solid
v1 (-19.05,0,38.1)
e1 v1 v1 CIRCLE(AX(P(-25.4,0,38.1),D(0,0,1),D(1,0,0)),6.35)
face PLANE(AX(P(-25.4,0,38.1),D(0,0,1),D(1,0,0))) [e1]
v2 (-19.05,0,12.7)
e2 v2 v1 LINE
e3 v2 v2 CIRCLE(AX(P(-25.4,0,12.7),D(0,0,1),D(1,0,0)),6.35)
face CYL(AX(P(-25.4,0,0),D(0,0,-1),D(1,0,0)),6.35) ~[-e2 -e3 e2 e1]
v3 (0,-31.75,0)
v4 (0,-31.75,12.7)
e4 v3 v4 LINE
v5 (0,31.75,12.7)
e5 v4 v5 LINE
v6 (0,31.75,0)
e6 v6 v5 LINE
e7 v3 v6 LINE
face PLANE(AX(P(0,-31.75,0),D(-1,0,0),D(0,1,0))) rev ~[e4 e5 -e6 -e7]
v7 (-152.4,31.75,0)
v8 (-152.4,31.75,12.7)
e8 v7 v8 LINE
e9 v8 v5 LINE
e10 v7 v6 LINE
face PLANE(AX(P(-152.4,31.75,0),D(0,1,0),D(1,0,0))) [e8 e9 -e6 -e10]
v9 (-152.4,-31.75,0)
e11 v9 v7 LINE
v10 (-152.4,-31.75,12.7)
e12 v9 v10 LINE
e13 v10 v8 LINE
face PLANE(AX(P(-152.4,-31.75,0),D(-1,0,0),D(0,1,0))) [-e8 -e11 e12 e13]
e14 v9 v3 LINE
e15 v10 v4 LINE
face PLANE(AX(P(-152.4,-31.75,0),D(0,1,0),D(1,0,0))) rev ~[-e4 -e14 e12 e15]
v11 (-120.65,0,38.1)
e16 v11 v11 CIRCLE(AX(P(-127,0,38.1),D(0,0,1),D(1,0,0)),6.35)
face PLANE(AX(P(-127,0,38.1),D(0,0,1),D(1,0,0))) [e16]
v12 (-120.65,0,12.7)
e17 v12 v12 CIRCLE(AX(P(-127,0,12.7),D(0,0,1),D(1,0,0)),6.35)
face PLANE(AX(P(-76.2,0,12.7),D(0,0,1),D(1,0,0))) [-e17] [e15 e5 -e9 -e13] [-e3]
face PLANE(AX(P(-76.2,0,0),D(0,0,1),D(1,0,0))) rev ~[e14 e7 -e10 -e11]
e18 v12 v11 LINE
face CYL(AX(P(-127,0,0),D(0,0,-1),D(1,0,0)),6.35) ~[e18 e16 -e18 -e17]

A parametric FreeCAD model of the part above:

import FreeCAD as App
import Part
import Sketcher

V = App.Vector
Q = App.Units.Quantity

doc = App.newDocument("Part")
body = doc.addObject("PartDesign::Body", "Body")

# Sketch on XY plane
sketch1 = body.newObject("Sketcher::SketchObject", "Sketch")
sketch1.AttachmentSupport = (doc.getObject("XY_Plane"), [""])
sketch1.MapMode = "FlatFace"
sketch1.addGeometry([
    Part.LineSegment(V(-152, 32, 0), V(-152, -32, 0)),  # 0
    Part.LineSegment(V(-152, -32, 0), V(0, -32, 0)),  # 1
    Part.LineSegment(V(0, -32, 0), V(0, 32, 0)),  # 2
    Part.LineSegment(V(0, 32, 0), V(-152, 32, 0)),  # 3
    Part.Circle(V(-127, 0, 0), V(0, 0, 1), 6),  # 4
    Part.Circle(V(-25, 0, 0), V(0, 0, 1), 6),  # 5
], False)
sketch1.addConstraint([
    Sketcher.Constraint("Coincident", 0, 2, 1, 1),
    Sketcher.Constraint("Coincident", 1, 2, 2, 1),
    Sketcher.Constraint("Coincident", 2, 2, 3, 1),
    Sketcher.Constraint("Coincident", 3, 2, 0, 1),
    Sketcher.Constraint("Vertical", 0),
    Sketcher.Constraint("Horizontal", 1),
    Sketcher.Constraint("Vertical", 2),
    Sketcher.Constraint("Horizontal", 3),
    Sketcher.Constraint("Equal", 4, 5),
    Sketcher.Constraint("Symmetric", 1, 2, 2, 2, -1, 1),
    Sketcher.Constraint("PointOnObject", 4, 3, -1),
    Sketcher.Constraint("PointOnObject", 5, 3, -1),
    Sketcher.Constraint("Diameter", 4, Q("0.5 in")),
    Sketcher.Constraint("DistanceX", 1, 1, 1, 2, Q("6 in")),
    Sketcher.Constraint("DistanceY", 0, 2, 0, 1, Q("2.5 in")),
    Sketcher.Constraint("DistanceX", 4, 3, -1, 1, Q("5 in")),
    Sketcher.Constraint("DistanceX", 5, 3, -1, 1, Q("1 in")),
])
pad1 = body.newObject("PartDesign::Pad", "Pad")
pad1.Profile = sketch1
pad1.Length = Q("0.5 in")

# Sketch on XY plane
sketch2 = body.newObject("Sketcher::SketchObject", "Sketch001")
sketch2.AttachmentSupport = (doc.getObject("XY_Plane"), [""])
sketch2.MapMode = "FlatFace"
sketch2.addGeometry([
    Part.Circle(V(-127, 0, 0), V(0, 0, 1), 6),
    Part.Circle(V(-25, 0, 0), V(0, 0, 1), 6),
], False)
sketch2.addConstraint([
    Sketcher.Constraint("Equal", 0, 1),
    Sketcher.Constraint("PointOnObject", 0, 3, -1),
    Sketcher.Constraint("PointOnObject", 1, 3, -1),
    Sketcher.Constraint("Diameter", 0, Q("0.5 in")),
    Sketcher.Constraint("DistanceX", 0, 3, -1, 1, Q("5 in")),
    Sketcher.Constraint("DistanceX", 1, 3, -1, 1, Q("1 in")),
])
pad2 = body.newObject("PartDesign::Pad", "Pad001")
pad2.Profile = sketch2
pad2.Length = Q("1.5 in")

doc.recompute()
